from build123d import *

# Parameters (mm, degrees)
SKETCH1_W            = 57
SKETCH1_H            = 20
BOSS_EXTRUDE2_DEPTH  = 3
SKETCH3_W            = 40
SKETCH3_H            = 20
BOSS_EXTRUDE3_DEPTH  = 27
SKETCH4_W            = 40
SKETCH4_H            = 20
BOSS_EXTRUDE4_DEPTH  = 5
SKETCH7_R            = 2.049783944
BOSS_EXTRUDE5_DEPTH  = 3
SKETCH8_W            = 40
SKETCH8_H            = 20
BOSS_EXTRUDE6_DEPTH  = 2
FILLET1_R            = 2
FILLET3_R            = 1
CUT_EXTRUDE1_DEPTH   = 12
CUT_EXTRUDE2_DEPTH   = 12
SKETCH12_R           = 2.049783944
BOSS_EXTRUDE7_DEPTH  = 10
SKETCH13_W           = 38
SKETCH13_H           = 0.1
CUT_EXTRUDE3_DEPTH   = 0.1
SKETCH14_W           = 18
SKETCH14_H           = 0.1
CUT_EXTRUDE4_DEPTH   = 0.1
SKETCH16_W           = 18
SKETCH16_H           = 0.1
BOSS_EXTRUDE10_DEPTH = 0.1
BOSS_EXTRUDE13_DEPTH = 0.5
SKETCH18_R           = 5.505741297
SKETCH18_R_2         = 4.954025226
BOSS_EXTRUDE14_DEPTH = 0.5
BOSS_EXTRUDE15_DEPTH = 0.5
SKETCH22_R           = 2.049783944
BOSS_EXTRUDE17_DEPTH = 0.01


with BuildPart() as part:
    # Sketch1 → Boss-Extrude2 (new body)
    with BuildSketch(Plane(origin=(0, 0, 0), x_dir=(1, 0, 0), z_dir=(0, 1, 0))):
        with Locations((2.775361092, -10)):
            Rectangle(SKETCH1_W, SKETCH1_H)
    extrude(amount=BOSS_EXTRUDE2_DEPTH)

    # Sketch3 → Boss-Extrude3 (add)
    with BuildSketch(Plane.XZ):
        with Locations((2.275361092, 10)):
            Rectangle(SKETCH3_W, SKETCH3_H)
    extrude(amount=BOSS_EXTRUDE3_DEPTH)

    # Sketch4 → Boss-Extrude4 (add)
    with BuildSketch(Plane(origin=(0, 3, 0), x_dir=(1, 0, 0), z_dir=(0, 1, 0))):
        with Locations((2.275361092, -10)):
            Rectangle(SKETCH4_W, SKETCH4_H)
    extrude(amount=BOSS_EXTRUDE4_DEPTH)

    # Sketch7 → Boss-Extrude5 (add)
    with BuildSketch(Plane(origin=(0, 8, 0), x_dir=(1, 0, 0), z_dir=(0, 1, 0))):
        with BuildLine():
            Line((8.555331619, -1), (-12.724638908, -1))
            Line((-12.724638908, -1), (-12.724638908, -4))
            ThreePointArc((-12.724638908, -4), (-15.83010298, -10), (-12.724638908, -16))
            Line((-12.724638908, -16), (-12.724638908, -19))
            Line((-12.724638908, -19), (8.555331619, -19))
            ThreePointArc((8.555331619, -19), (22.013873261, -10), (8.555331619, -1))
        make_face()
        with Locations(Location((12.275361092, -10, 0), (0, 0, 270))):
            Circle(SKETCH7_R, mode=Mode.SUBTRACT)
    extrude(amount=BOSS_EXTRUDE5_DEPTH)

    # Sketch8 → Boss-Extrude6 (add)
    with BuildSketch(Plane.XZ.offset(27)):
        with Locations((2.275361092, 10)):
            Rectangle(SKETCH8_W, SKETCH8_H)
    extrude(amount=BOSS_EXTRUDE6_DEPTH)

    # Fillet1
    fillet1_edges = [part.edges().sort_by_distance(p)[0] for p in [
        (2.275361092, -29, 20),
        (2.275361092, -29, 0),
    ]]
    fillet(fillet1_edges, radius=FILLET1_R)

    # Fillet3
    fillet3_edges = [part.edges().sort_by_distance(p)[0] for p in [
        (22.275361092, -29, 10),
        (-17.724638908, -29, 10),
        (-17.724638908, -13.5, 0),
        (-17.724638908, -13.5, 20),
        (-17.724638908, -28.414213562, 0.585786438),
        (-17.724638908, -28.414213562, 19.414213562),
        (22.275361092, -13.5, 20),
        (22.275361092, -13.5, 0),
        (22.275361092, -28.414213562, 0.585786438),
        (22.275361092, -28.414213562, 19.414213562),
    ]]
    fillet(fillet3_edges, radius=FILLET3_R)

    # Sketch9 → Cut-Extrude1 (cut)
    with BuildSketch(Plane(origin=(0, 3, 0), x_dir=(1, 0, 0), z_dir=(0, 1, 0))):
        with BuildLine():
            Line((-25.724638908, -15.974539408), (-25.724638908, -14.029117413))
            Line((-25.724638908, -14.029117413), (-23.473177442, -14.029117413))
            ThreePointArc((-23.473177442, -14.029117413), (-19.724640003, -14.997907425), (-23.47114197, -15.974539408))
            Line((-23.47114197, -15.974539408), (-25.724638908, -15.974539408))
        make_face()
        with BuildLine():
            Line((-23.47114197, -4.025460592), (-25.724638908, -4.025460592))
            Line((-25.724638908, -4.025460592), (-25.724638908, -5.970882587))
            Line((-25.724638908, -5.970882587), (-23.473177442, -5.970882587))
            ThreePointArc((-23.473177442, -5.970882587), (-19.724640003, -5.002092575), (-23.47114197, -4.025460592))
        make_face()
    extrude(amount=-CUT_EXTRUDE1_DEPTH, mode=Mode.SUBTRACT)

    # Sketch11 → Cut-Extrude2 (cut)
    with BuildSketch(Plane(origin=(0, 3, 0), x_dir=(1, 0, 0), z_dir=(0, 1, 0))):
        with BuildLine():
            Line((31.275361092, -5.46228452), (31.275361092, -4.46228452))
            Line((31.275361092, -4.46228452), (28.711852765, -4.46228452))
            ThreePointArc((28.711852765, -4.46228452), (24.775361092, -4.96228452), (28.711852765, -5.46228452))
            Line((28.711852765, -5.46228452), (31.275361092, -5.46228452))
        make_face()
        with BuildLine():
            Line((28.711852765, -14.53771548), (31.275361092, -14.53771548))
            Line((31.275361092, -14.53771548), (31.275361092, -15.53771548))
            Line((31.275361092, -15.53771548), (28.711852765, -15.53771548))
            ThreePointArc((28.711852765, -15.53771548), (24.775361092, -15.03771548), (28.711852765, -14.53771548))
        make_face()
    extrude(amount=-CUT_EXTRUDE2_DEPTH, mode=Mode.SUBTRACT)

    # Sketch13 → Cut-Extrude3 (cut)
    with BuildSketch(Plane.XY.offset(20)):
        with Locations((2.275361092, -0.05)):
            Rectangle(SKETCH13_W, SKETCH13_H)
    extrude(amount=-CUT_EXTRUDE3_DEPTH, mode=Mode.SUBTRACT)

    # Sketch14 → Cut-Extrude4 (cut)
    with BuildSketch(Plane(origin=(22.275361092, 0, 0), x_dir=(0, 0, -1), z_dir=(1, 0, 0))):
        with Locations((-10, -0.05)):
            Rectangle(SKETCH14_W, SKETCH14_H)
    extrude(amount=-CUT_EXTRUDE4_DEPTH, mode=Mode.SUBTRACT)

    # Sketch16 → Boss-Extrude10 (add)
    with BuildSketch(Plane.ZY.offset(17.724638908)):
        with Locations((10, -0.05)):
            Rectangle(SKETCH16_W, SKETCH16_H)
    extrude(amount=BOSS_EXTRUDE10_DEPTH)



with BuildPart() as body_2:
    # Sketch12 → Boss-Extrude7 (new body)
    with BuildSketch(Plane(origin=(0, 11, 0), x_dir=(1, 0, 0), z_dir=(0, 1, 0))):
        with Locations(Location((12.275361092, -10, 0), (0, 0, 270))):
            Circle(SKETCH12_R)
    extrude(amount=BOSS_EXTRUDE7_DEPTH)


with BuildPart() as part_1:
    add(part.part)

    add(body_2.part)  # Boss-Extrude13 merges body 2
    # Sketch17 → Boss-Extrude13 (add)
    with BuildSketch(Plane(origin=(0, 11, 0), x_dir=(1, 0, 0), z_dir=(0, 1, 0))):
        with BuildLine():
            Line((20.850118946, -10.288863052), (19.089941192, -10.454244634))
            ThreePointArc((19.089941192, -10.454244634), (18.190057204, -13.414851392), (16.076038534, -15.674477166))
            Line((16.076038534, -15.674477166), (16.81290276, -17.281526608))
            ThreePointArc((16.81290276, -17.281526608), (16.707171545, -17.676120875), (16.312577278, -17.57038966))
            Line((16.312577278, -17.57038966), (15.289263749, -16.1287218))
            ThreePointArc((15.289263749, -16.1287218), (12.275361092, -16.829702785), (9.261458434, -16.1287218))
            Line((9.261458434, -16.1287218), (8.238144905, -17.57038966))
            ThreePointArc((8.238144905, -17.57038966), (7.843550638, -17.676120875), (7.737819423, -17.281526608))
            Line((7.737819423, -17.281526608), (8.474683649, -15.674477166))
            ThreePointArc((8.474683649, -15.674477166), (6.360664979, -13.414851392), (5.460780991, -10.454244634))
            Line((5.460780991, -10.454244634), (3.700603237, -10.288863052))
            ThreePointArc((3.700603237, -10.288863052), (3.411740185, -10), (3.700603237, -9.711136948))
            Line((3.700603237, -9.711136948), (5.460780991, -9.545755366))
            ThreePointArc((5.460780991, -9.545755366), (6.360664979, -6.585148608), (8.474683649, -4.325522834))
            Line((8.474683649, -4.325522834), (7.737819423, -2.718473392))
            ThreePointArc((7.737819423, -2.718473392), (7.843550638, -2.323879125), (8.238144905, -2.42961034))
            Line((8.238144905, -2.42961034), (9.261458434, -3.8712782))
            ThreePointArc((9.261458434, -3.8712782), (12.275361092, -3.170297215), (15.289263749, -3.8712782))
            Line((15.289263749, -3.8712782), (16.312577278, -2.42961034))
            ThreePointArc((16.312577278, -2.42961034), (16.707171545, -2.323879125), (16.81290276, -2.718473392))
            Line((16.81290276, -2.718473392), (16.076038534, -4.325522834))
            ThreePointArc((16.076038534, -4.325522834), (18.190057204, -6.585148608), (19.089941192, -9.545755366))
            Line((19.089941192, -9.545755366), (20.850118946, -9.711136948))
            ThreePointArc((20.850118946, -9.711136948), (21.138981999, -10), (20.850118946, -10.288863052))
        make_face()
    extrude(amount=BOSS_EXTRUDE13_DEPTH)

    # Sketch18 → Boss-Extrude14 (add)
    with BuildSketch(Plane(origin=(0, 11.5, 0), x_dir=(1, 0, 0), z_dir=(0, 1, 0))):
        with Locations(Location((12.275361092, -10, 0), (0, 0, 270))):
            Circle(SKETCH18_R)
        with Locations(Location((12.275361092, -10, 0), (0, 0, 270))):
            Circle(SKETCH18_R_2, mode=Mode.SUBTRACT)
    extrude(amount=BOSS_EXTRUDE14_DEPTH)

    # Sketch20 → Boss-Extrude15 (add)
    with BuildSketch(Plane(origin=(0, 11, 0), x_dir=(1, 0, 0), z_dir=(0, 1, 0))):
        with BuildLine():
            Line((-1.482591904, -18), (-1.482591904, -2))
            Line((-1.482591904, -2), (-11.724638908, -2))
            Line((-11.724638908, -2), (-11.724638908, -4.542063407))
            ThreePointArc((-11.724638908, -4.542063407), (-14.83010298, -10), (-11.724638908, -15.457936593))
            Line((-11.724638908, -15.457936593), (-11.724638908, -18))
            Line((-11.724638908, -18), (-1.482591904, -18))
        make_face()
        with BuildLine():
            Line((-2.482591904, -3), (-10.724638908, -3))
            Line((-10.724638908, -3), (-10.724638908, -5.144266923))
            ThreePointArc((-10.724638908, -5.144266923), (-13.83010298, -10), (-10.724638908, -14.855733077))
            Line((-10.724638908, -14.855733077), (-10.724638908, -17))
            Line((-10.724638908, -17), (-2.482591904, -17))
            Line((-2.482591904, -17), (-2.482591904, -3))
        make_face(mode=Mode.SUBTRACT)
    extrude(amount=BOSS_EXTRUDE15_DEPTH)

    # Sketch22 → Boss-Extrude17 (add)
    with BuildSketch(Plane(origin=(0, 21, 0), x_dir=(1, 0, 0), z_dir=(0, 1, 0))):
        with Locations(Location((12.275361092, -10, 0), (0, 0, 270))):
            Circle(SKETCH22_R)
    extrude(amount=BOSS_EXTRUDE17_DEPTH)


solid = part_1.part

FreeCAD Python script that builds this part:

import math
import FreeCAD as App
import Part
import Sketcher
Q = App.Units.Quantity


def edges_at(feature, points):
    """Names of the edges that pass closest to the given points."""
    edges = feature.Shape.Edges
    near = lambda p: min(range(len(edges)), key=lambda i: edges[i].distToShape(Part.Vertex(*p))[0])
    return sorted({f"Edge{near(p) + 1}" for p in points})


def add_polygon(sketch, points):
    """Adds a closed chain of lines whose ends are joined by coincident constraints."""
    first, n = sketch.GeometryCount, len(points)
    for a, b in zip(points, points[1:] + points[:1]):
        sketch.addGeometry(Part.LineSegment(App.Vector(*a, 0), App.Vector(*b, 0)), False)
    for i in range(n):
        sketch.addConstraint(Sketcher.Constraint("Coincident", first + i, 2, first + (i + 1) % n, 1))

doc = App.newDocument("Part")
params = doc.addObject("Spreadsheet::Sheet", "Params")
for row, (alias, value) in enumerate([
    ("sketch1_width", "57 mm"),
    ("sketch1_height", "20 mm"),
    ("pad1_length", "3 mm"),
    ("sketch2_width", "40 mm"),
    ("sketch2_height", "20 mm"),
    ("pad2_length", "27 mm"),
    ("sketch3_width", "40 mm"),
    ("sketch3_height", "20 mm"),
    ("pad3_length", "5 mm"),
    ("sketch4_height", "3 mm"),
    ("pad4_length", "3 mm"),
    ("sketch5_width", "40 mm"),
    ("sketch5_height", "20 mm"),
    ("pad5_length", "2 mm"),
    ("fillet_radius", "2 mm"),
    ("fillet2_radius", "1 mm"),
    ("sketch6_radius", "2 mm"),
    ("pocket1_length", "12 mm"),
    ("sketch7_radius", "2 mm"),
    ("sketch7_height", "1 mm"),
    ("pocket2_length", "12 mm"),
    ("sketch8_width", "38 mm"),
    ("sketch8_height", "0.1 mm"),
    ("pocket3_length", "0.1 mm"),
    ("sketch9_height", "18 mm"),
    ("sketch9_width", "0.1 mm"),
    ("pocket4_length", "0.1 mm"),
    ("sketch10_height", "18 mm"),
    ("sketch10_width", "0.1 mm"),
    ("pad6_length", "0.1 mm"),
    ("pad7_length", "10 mm"),
    ("pad8_length", "0.5 mm"),
    ("pad9_length", "0.5 mm"),
    ("sketch14_height", "16 mm"),
    ("sketch14_height2", "14 mm"),
    ("pad10_length", "0.5 mm"),
    ("pad11_length", "0.01 mm"),
], start=1):
    params.set(f"A{row}", alias)
    params.set(f"B{row}", "=" + value)
    params.setAlias(f"B{row}", alias)

body = doc.addObject("PartDesign::Body", "Body")

# Sketch on XZ plane
sketch1 = doc.addObject("Sketcher::SketchObject", "Sketch")
body.addObject(sketch1)
sketch1.AttachmentSupport = (doc.XZ_Plane, [""])
sketch1.MapMode = "FlatFace"
add_polygon(sketch1, [(-25.724639, 0), (-25.724639, 20), (31.275361, 20), (31.275361, 0)])  # lines 0-3
sketch1.addConstraint([
    Sketcher.Constraint("Vertical", 0),
    Sketcher.Constraint("Horizontal", 1),
    Sketcher.Constraint("Vertical", 2),
    Sketcher.Constraint("Horizontal", 3),
    Sketcher.Constraint("PointOnObject", 2, 2, -1),
    Sketcher.Constraint("DistanceX", 1, 1, 1, 2, Q("57 mm")),
    Sketcher.Constraint("DistanceY", 0, 1, 0, 2, Q("20 mm")),
    Sketcher.Constraint("DistanceX", 0, 2, -1, 1, Q("25.724639 mm")),
])
sketch1.setExpression("Constraints[9]", "Params.sketch1_width")
sketch1.setExpression("Constraints[10]", "Params.sketch1_height")
pad1 = doc.addObject("PartDesign::Pad", "Pad")
body.addObject(pad1)
pad1.Profile = sketch1
pad1.setExpression("Length", "Params.pad1_length")
pad1.Reversed = True

# Sketch on XZ plane
sketch2 = doc.addObject("Sketcher::SketchObject", "Sketch001")
body.addObject(sketch2)
sketch2.AttachmentSupport = (doc.XZ_Plane, [""])
sketch2.MapMode = "FlatFace"
add_polygon(sketch2, [(-17.724639, 20), (-17.724639, 0), (22.275361, 0), (22.275361, 20)])  # lines 0-3
sketch2.addConstraint([
    Sketcher.Constraint("Vertical", 0),
    Sketcher.Constraint("Horizontal", 1),
    Sketcher.Constraint("Vertical", 2),
    Sketcher.Constraint("Horizontal", 3),
    Sketcher.Constraint("PointOnObject", 0, 2, -1),
    Sketcher.Constraint("DistanceX", 1, 1, 1, 2, Q("40 mm")),
    Sketcher.Constraint("DistanceY", 0, 2, 0, 1, Q("20 mm")),
    Sketcher.Constraint("DistanceX", 0, 2, -1, 1, Q("17.724639 mm")),
])
sketch2.setExpression("Constraints[9]", "Params.sketch2_width")
sketch2.setExpression("Constraints[10]", "Params.sketch2_height")
pad2 = doc.addObject("PartDesign::Pad", "Pad001")
body.addObject(pad2)
pad2.Profile = sketch2
pad2.setExpression("Length", "Params.pad2_length")

# Sketch on XZ plane
sketch3 = doc.addObject("Sketcher::SketchObject", "Sketch002")
body.addObject(sketch3)
sketch3.AttachmentSupport = (doc.XZ_Plane, [""])
sketch3.MapMode = "FlatFace"
sketch3.AttachmentOffset = App.Placement(App.Vector(0, 0, -3), App.Rotation())
add_polygon(sketch3, [(-17.724639, 0), (-17.724639, 20), (22.275361, 20), (22.275361, 0)])  # lines 0-3
sketch3.addConstraint([
    Sketcher.Constraint("Vertical", 0),
    Sketcher.Constraint("Horizontal", 1),
    Sketcher.Constraint("Vertical", 2),
    Sketcher.Constraint("Horizontal", 3),
    Sketcher.Constraint("PointOnObject", 2, 2, -1),
    Sketcher.Constraint("DistanceX", 1, 1, 1, 2, Q("40 mm")),
    Sketcher.Constraint("DistanceY", 0, 1, 0, 2, Q("20 mm")),
    Sketcher.Constraint("DistanceX", 0, 2, -1, 1, Q("17.724639 mm")),
])
sketch3.setExpression("Constraints[9]", "Params.sketch3_width")
sketch3.setExpression("Constraints[10]", "Params.sketch3_height")
pad3 = doc.addObject("PartDesign::Pad", "Pad002")
body.addObject(pad3)
pad3.Profile = sketch3
pad3.setExpression("Length", "Params.pad3_length")
pad3.Reversed = True

# Sketch on XZ plane
sketch4 = doc.addObject("Sketcher::SketchObject", "Sketch003")
body.addObject(sketch4)
sketch4.AttachmentSupport = (doc.XZ_Plane, [""])
sketch4.MapMode = "FlatFace"
sketch4.AttachmentOffset = App.Placement(App.Vector(0, 0, -8), App.Rotation())
sketch4.addGeometry([
    Part.LineSegment(App.Vector(8.555332, 1, 0), App.Vector(-12.724639, 1, 0)),  # 0
    Part.LineSegment(App.Vector(-12.724639, 1, 0), App.Vector(-12.724639, 4, 0)),  # 1
    Part.ArcOfCircle(Part.Circle(App.Vector(-8.481136, 10, 0), App.Vector(0, 0, 1), 7.348967), math.radians(125.26988), math.radians(234.73012)),  # 2
    Part.LineSegment(App.Vector(-12.724639, 16, 0), App.Vector(-12.724639, 19, 0)),  # 3
    Part.LineSegment(App.Vector(-12.724639, 19, 0), App.Vector(8.555332, 19, 0)),  # 4
    Part.ArcOfCircle(Part.Circle(App.Vector(12.275361, 10, 0), App.Vector(0, 0, 1), 9.738512), math.radians(-112.457099), math.radians(112.457099)),  # 5
    Part.Circle(App.Vector(12.275361, 10, 0), App.Vector(0, 0, 1), 2.049784),  # 6
], False)
sketch4.addConstraint([
    Sketcher.Constraint("Coincident", 0, 2, 1, 1),
    Sketcher.Constraint("Coincident", 1, 2, 2, 2),
    Sketcher.Constraint("Coincident", 2, 1, 3, 1),
    Sketcher.Constraint("Coincident", 3, 2, 4, 1),
    Sketcher.Constraint("Coincident", 4, 2, 5, 2),
    Sketcher.Constraint("Coincident", 5, 1, 0, 1),
    Sketcher.Constraint("Horizontal", 0),
    Sketcher.Constraint("Vertical", 1),
    Sketcher.Constraint("Vertical", 3),
    Sketcher.Constraint("Horizontal", 4),
    Sketcher.Constraint("Coincident", 6, 3, 5, 3),
    Sketcher.Constraint("Horizontal", 2, 3, 5, 3),
    Sketcher.Constraint("Vertical", 1, 2, 2, 1),
    Sketcher.Constraint("Vertical", 4, 2, 5, 1),
    Sketcher.Constraint("DistanceY", 1, 1, 1, 2, Q("3 mm")),
    Sketcher.Constraint("DistanceY", -1, 1, 2, 3, Q("10 mm")),
    Sketcher.Constraint("DistanceY", -1, 1, 0, 2, Q("1 mm")),
    Sketcher.Constraint("DistanceX", 0, 2, 5, 3, Q("25 mm")),
    Sketcher.Constraint("Diameter", 6, Q("4.099568 mm")),
    Sketcher.Constraint("Radius", 2, Q("7.348967 mm")),
    Sketcher.Constraint("Radius", 5, Q("9.738512 mm")),
    Sketcher.Constraint("DistanceX", -1, 1, 5, 3, Q("12.275361 mm")),
])
sketch4.setExpression("Constraints[14]", "Params.sketch4_height")
pad4 = doc.addObject("PartDesign::Pad", "Pad003")
body.addObject(pad4)
pad4.Profile = sketch4
pad4.setExpression("Length", "Params.pad4_length")
pad4.Reversed = True

# Sketch on XZ plane
sketch5 = doc.addObject("Sketcher::SketchObject", "Sketch004")
body.addObject(sketch5)
sketch5.AttachmentSupport = (doc.XZ_Plane, [""])
sketch5.MapMode = "FlatFace"
sketch5.AttachmentOffset = App.Placement(App.Vector(0, 0, 27), App.Rotation())
add_polygon(sketch5, [(-17.724639, 20), (-17.724639, 0), (22.275361, 0), (22.275361, 20)])  # lines 0-3
sketch5.addConstraint([
    Sketcher.Constraint("Vertical", 0),
    Sketcher.Constraint("Horizontal", 1),
    Sketcher.Constraint("Vertical", 2),
    Sketcher.Constraint("Horizontal", 3),
    Sketcher.Constraint("PointOnObject", 0, 2, -1),
    Sketcher.Constraint("DistanceX", 1, 1, 1, 2, Q("40 mm")),
    Sketcher.Constraint("DistanceY", 0, 2, 0, 1, Q("20 mm")),
    Sketcher.Constraint("DistanceX", 0, 2, -1, 1, Q("17.724639 mm")),
])
sketch5.setExpression("Constraints[9]", "Params.sketch5_width")
sketch5.setExpression("Constraints[10]", "Params.sketch5_height")
pad5 = doc.addObject("PartDesign::Pad", "Pad004")
body.addObject(pad5)
pad5.Profile = sketch5
pad5.setExpression("Length", "Params.pad5_length")
doc.recompute()

fillet = doc.addObject("PartDesign::Fillet", "Fillet")
body.addObject(fillet)
fillet.Base = (pad5, edges_at(pad5, [(2.275, -29, 20), (2.275, -29, 0)]))
fillet.setExpression("Radius", "Params.fillet_radius")
doc.recompute()

fillet2 = doc.addObject("PartDesign::Fillet", "Fillet001")
body.addObject(fillet2)
fillet2.Base = (fillet, edges_at(fillet, [
    (22.275, -29, 10),
    (-17.725, -29, 10),
    (-17.725, -13.5, 0),
    (-17.725, -13.5, 20),
    (-17.725, -28.414, 0.586),
    (-17.725, -28.414, 19.414),
    (22.275, -13.5, 20),
    (22.275, -13.5, 0),
    (22.275, -28.414, 0.586),
    (22.275, -28.414, 19.414),
]))
fillet2.setExpression("Radius", "Params.fillet2_radius")

# Sketch on XZ plane
sketch6 = doc.addObject("Sketcher::SketchObject", "Sketch005")
body.addObject(sketch6)
sketch6.AttachmentSupport = (doc.XZ_Plane, [""])
sketch6.MapMode = "FlatFace"
sketch6.AttachmentOffset = App.Placement(App.Vector(0, 0, -3), App.Rotation())
sketch6.addGeometry([
    Part.LineSegment(App.Vector(-25.724639, 14.029117, 0), App.Vector(-25.724639, 15.974539, 0)),  # 0
    Part.LineSegment(App.Vector(-25.724639, 15.974539, 0), App.Vector(-23.471142, 15.974539, 0)),  # 1
    Part.ArcOfCircle(Part.Circle(App.Vector(-21.724639, 15, 0), App.Vector(0, 0, 1), 2), math.radians(-150.958611), math.radians(150.838715)),  # 2
    Part.LineSegment(App.Vector(-23.473177, 14.029117, 0), App.Vector(-25.724639, 14.029117, 0)),  # 3
    Part.LineSegment(App.Vector(-23.471142, 4.025461, 0), App.Vector(-25.724639, 4.025461, 0)),  # 4
    Part.LineSegment(App.Vector(-25.724639, 4.025461, 0), App.Vector(-25.724639, 5.970883, 0)),  # 5
    Part.LineSegment(App.Vector(-25.724639, 5.970883, 0), App.Vector(-23.473177, 5.970883, 0)),  # 6
    Part.ArcOfCircle(Part.Circle(App.Vector(-21.724639, 5, 0), App.Vector(0, 0, 1), 2), math.radians(-150.838715), math.radians(150.958611)),  # 7
], False)
sketch6.addConstraint([
    Sketcher.Constraint("Coincident", 0, 2, 1, 1),
    Sketcher.Constraint("Coincident", 1, 2, 2, 2),
    Sketcher.Constraint("Coincident", 2, 1, 3, 1),
    Sketcher.Constraint("Coincident", 3, 2, 0, 1),
    Sketcher.Constraint("Coincident", 4, 2, 5, 1),
    Sketcher.Constraint("Coincident", 5, 2, 6, 1),
    Sketcher.Constraint("Coincident", 6, 2, 7, 2),
    Sketcher.Constraint("Coincident", 7, 1, 4, 1),
    Sketcher.Constraint("Vertical", 0),
    Sketcher.Constraint("Horizontal", 1),
    Sketcher.Constraint("Horizontal", 3),
    Sketcher.Constraint("Horizontal", 4),
    Sketcher.Constraint("Vertical", 5),
    Sketcher.Constraint("Horizontal", 6),
    Sketcher.Constraint("Equal", 2, 7),
    Sketcher.Constraint("Vertical", 2, 3, 7, 3),
    Sketcher.Constraint("Vertical", 3, 2, 4, 2),
    Sketcher.Constraint("Vertical", 2, 1, 6, 2),
    Sketcher.Constraint("Vertical", 1, 2, 7, 1),
    Sketcher.Constraint("Radius", 2, Q("2 mm")),
    Sketcher.Constraint("DistanceY", -1, 1, 2, 3, Q("15 mm")),
    Sketcher.Constraint("DistanceY", -1, 1, 7, 3, Q("5 mm")),
    Sketcher.Constraint("DistanceX", 0, 2, 2, 3, Q("4 mm")),
    Sketcher.Constraint("DistanceX", 3, 2, 3, 1, Q("2.251461 mm")),
    Sketcher.Constraint("DistanceY", 0, 1, 0, 2, Q("1.945422 mm")),
    Sketcher.Constraint("DistanceX", 2, 3, -1, 1, Q("21.724639 mm")),
])
sketch6.setExpression("Constraints[19]", "Params.sketch6_radius")
pocket1 = doc.addObject("PartDesign::Pocket", "Pocket")
body.addObject(pocket1)
pocket1.Profile = sketch6
pocket1.setExpression("Length", "Params.pocket1_length")
pocket1.Reversed = True

# Sketch on XZ plane
sketch7 = doc.addObject("Sketcher::SketchObject", "Sketch006")
body.addObject(sketch7)
sketch7.AttachmentSupport = (doc.XZ_Plane, [""])
sketch7.MapMode = "FlatFace"
sketch7.AttachmentOffset = App.Placement(App.Vector(0, 0, -3), App.Rotation())
sketch7.addGeometry([
    Part.LineSegment(App.Vector(31.275361, 5.462285, 0), App.Vector(31.275361, 4.462285, 0)),  # 0
    Part.LineSegment(App.Vector(31.275361, 4.462285, 0), App.Vector(28.711853, 4.462285, 0)),  # 1
    Part.ArcOfCircle(Part.Circle(App.Vector(26.775361, 4.962285, 0), App.Vector(0, 0, 1), 2), math.radians(14.477512), math.radians(345.522488)),  # 2
    Part.LineSegment(App.Vector(28.711853, 5.462285, 0), App.Vector(31.275361, 5.462285, 0)),  # 3
    Part.LineSegment(App.Vector(31.275361, 14.537715, 0), App.Vector(28.711853, 14.537715, 0)),  # 4
    Part.ArcOfCircle(Part.Circle(App.Vector(26.775361, 15.037715, 0), App.Vector(0, 0, 1), 2), math.radians(14.477512), math.radians(345.522488)),  # 5
    Part.LineSegment(App.Vector(28.711853, 15.537715, 0), App.Vector(31.275361, 15.537715, 0)),  # 6
    Part.LineSegment(App.Vector(31.275361, 15.537715, 0), App.Vector(31.275361, 14.537715, 0)),  # 7
], False)
sketch7.addConstraint([
    Sketcher.Constraint("Coincident", 0, 2, 1, 1),
    Sketcher.Constraint("Coincident", 1, 2, 2, 2),
    Sketcher.Constraint("Coincident", 2, 1, 3, 1),
    Sketcher.Constraint("Coincident", 3, 2, 0, 1),
    Sketcher.Constraint("Coincident", 4, 2, 5, 2),
    Sketcher.Constraint("Coincident", 5, 1, 6, 1),
    Sketcher.Constraint("Coincident", 6, 2, 7, 1),
    Sketcher.Constraint("Coincident", 7, 2, 4, 1),
    Sketcher.Constraint("Vertical", 0),
    Sketcher.Constraint("Horizontal", 1),
    Sketcher.Constraint("Horizontal", 3),
    Sketcher.Constraint("Horizontal", 4),
    Sketcher.Constraint("Horizontal", 6),
    Sketcher.Constraint("Vertical", 7),
    Sketcher.Constraint("Equal", 2, 5),
    Sketcher.Constraint("Vertical", 2, 3, 5, 3),
    Sketcher.Constraint("Vertical", 1, 2, 2, 1),
    Sketcher.Constraint("Vertical", 2, 1, 4, 2),
    Sketcher.Constraint("Vertical", 4, 2, 5, 1),
    Sketcher.Constraint("Vertical", 3, 2, 6, 2),
    Sketcher.Constraint("Radius", 2, Q("2 mm")),
    Sketcher.Constraint("DistanceY", 0, 2, 0, 1, Q("1 mm")),
    Sketcher.Constraint("DistanceX", 2, 3, 0, 2, Q("4.5 mm")),
    Sketcher.Constraint("DistanceX", -1, 1, 2, 3, Q("26.775361 mm")),
    Sketcher.Constraint("DistanceY", 2, 3, 5, 3, Q("10.075431 mm")),
    Sketcher.Constraint("DistanceY", -1, 1, 2, 3, Q("4.962285 mm")),
])
sketch7.setExpression("Constraints[20]", "Params.sketch7_radius")
sketch7.setExpression("Constraints[21]", "Params.sketch7_height")
pocket2 = doc.addObject("PartDesign::Pocket", "Pocket001")
body.addObject(pocket2)
pocket2.Profile = sketch7
pocket2.setExpression("Length", "Params.pocket2_length")
pocket2.Reversed = True

# Sketch on XY plane
sketch8 = doc.addObject("Sketcher::SketchObject", "Sketch007")
body.addObject(sketch8)
sketch8.AttachmentSupport = (doc.XY_Plane, [""])
sketch8.MapMode = "FlatFace"
sketch8.AttachmentOffset = App.Placement(App.Vector(0, 0, 20), App.Rotation())
add_polygon(sketch8, [(-16.724639, 0), (-16.724639, -0.1), (21.275361, -0.1), (21.275361, 0)])  # lines 0-3
sketch8.addConstraint([
    Sketcher.Constraint("Vertical", 0),
    Sketcher.Constraint("Horizontal", 1),
    Sketcher.Constraint("Vertical", 2),
    Sketcher.Constraint("Horizontal", 3),
    Sketcher.Constraint("PointOnObject", 2, 2, -1),
    Sketcher.Constraint("DistanceX", 1, 1, 1, 2, Q("38 mm")),
    Sketcher.Constraint("DistanceY", 0, 2, 0, 1, Q("0.1 mm")),
    Sketcher.Constraint("DistanceX", 0, 2, -1, 1, Q("16.724639 mm")),
])
sketch8.setExpression("Constraints[9]", "Params.sketch8_width")
sketch8.setExpression("Constraints[10]", "Params.sketch8_height")
pocket3 = doc.addObject("PartDesign::Pocket", "Pocket002")
body.addObject(pocket3)
pocket3.Profile = sketch8
pocket3.setExpression("Length", "Params.pocket3_length")

# Sketch on YZ plane
sketch9 = doc.addObject("Sketcher::SketchObject", "Sketch008")
body.addObject(sketch9)
sketch9.AttachmentSupport = (doc.YZ_Plane, [""])
sketch9.MapMode = "FlatFace"
sketch9.AttachmentOffset = App.Placement(App.Vector(0, 0, 22.275361), App.Rotation())
add_polygon(sketch9, [(0, 19), (-0.1, 19), (-0.1, 1), (0, 1)])  # lines 0-3
sketch9.addConstraint([
    Sketcher.Constraint("Horizontal", 0),
    Sketcher.Constraint("Vertical", 1),
    Sketcher.Constraint("Horizontal", 2),
    Sketcher.Constraint("Vertical", 3),
    Sketcher.Constraint("PointOnObject", 2, 2, -2),
    Sketcher.Constraint("DistanceY", 1, 2, 1, 1, Q("18 mm")),
    Sketcher.Constraint("DistanceX", 0, 2, 0, 1, Q("0.1 mm")),
    Sketcher.Constraint("DistanceY", -1, 1, 0, 2, Q("19 mm")),
])
sketch9.setExpression("Constraints[9]", "Params.sketch9_height")
sketch9.setExpression("Constraints[10]", "Params.sketch9_width")
pocket4 = doc.addObject("PartDesign::Pocket", "Pocket003")
body.addObject(pocket4)
pocket4.Profile = sketch9
pocket4.setExpression("Length", "Params.pocket4_length")

# Sketch on YZ plane
sketch10 = doc.addObject("Sketcher::SketchObject", "Sketch009")
body.addObject(sketch10)
sketch10.AttachmentSupport = (doc.YZ_Plane, [""])
sketch10.MapMode = "FlatFace"
sketch10.AttachmentOffset = App.Placement(App.Vector(0, 0, -17.724639), App.Rotation())
add_polygon(sketch10, [(0, 1), (-0.1, 1), (-0.1, 19), (0, 19)])  # lines 0-3
sketch10.addConstraint([
    Sketcher.Constraint("Horizontal", 0),
    Sketcher.Constraint("Vertical", 1),
    Sketcher.Constraint("Horizontal", 2),
    Sketcher.Constraint("Vertical", 3),
    Sketcher.Constraint("PointOnObject", 2, 2, -2),
    Sketcher.Constraint("DistanceY", 1, 1, 1, 2, Q("18 mm")),
    Sketcher.Constraint("DistanceX", 0, 2, 0, 1, Q("0.1 mm")),
    Sketcher.Constraint("DistanceY", -1, 1, 0, 2, Q("1 mm")),
])
sketch10.setExpression("Constraints[9]", "Params.sketch10_height")
sketch10.setExpression("Constraints[10]", "Params.sketch10_width")
pad6 = doc.addObject("PartDesign::Pad", "Pad005")
body.addObject(pad6)
pad6.Profile = sketch10
pad6.setExpression("Length", "Params.pad6_length")
pad6.Reversed = True
body2 = doc.addObject("PartDesign::Body", "Body001")

# Sketch on XZ plane
sketch11 = doc.addObject("Sketcher::SketchObject", "Sketch010")
body2.addObject(sketch11)
sketch11.AttachmentSupport = (doc.getObject("XZ_Plane001"), [""])
sketch11.MapMode = "FlatFace"
sketch11.AttachmentOffset = App.Placement(App.Vector(0, 0, -11), App.Rotation())
sketch11.addGeometry(Part.Circle(App.Vector(12.275361, 10, 0), App.Vector(0, 0, 1), 2.049784), False)
sketch11.addConstraint([
    Sketcher.Constraint("DistanceY", -1, 1, 0, 3, Q("10 mm")),
    Sketcher.Constraint("Diameter", 0, Q("4.099568 mm")),
    Sketcher.Constraint("DistanceX", -1, 1, 0, 3, Q("12.275361 mm")),
])
pad7 = doc.addObject("PartDesign::Pad", "Pad006")
body2.addObject(pad7)
pad7.Profile = sketch11
pad7.setExpression("Length", "Params.pad7_length")
pad7.Reversed = True
body.AllowCompound = True
doc.recompute()

boolean = doc.addObject("PartDesign::Boolean", "Boolean")
body.addObject(boolean)
boolean.Type = "Fuse"
boolean.addObjects([body2])

# Sketch on XZ plane
sketch12 = doc.addObject("Sketcher::SketchObject", "Sketch011")
body.addObject(sketch12)
sketch12.AttachmentSupport = (doc.XZ_Plane, [""])
sketch12.MapMode = "FlatFace"
sketch12.AttachmentOffset = App.Placement(App.Vector(0, 0, -11), App.Rotation())
sketch12.addGeometry([
    Part.LineSegment(App.Vector(19.089941, 10.454245, 0), App.Vector(20.850119, 10.288863, 0)),  # 0
    Part.ArcOfCircle(Part.Circle(App.Vector(20.850119, 10, 0), App.Vector(0, 0, 1), 0.288863), math.radians(-90), math.radians(90)),  # 1
    Part.LineSegment(App.Vector(20.850119, 9.711137, 0), App.Vector(19.089941, 9.545755, 0)),  # 2
    Part.ArcOfCircle(Part.Circle(App.Vector(12.275361, 10, 0), App.Vector(0, 0, 1), 6.829703), math.radians(-56.186433), math.radians(-3.813567)),  # 3
    Part.LineSegment(App.Vector(16.076039, 4.325523, 0), App.Vector(16.812903, 2.718473, 0)),  # 4
    Part.ArcOfCircle(Part.Circle(App.Vector(16.56274, 2.574042, 0), App.Vector(0, 0, 1), 0.288863), math.radians(-150), math.radians(30)),  # 5
    Part.LineSegment(App.Vector(16.312577, 2.42961, 0), App.Vector(15.289264, 3.871278, 0)),  # 6
    Part.ArcOfCircle(Part.Circle(App.Vector(12.275361, 10, 0), App.Vector(0, 0, 1), 6.829703), math.radians(-116.186433), math.radians(-63.813567)),  # 7
    Part.LineSegment(App.Vector(9.261458, 3.871278, 0), App.Vector(8.238145, 2.42961, 0)),  # 8
    Part.ArcOfCircle(Part.Circle(App.Vector(7.987982, 2.574042, 0), App.Vector(0, 0, 1), 0.288863), math.radians(150), math.radians(330)),  # 9
    Part.LineSegment(App.Vector(7.737819, 2.718473, 0), App.Vector(8.474684, 4.325523, 0)),  # 10
    Part.ArcOfCircle(Part.Circle(App.Vector(12.275361, 10, 0), App.Vector(0, 0, 1), 6.829703), math.radians(-176.186433), math.radians(-123.813567)),  # 11
    Part.LineSegment(App.Vector(5.460781, 9.545755, 0), App.Vector(3.700603, 9.711137, 0)),  # 12
    Part.ArcOfCircle(Part.Circle(App.Vector(3.700603, 10, 0), App.Vector(0, 0, 1), 0.288863), math.radians(90), math.radians(270)),  # 13
    Part.LineSegment(App.Vector(3.700603, 10.288863, 0), App.Vector(5.460781, 10.454245, 0)),  # 14
    Part.ArcOfCircle(Part.Circle(App.Vector(12.275361, 10, 0), App.Vector(0, 0, 1), 6.829703), math.radians(123.813567), math.radians(176.186433)),  # 15
    Part.LineSegment(App.Vector(8.474684, 15.674477, 0), App.Vector(7.737819, 17.281527, 0)),  # 16
    Part.ArcOfCircle(Part.Circle(App.Vector(7.987982, 17.425958, 0), App.Vector(0, 0, 1), 0.288863), math.radians(30), math.radians(210)),  # 17
    Part.LineSegment(App.Vector(8.238145, 17.57039, 0), App.Vector(9.261458, 16.128722, 0)),  # 18
    Part.ArcOfCircle(Part.Circle(App.Vector(12.275361, 10, 0), App.Vector(0, 0, 1), 6.829703), math.radians(63.813567), math.radians(116.186433)),  # 19
    Part.LineSegment(App.Vector(15.289264, 16.128722, 0), App.Vector(16.312577, 17.57039, 0)),  # 20
    Part.ArcOfCircle(Part.Circle(App.Vector(16.56274, 17.425958, 0), App.Vector(0, 0, 1), 0.288863), math.radians(-30), math.radians(150)),  # 21
    Part.LineSegment(App.Vector(16.812903, 17.281527, 0), App.Vector(16.076039, 15.674477, 0)),  # 22
    Part.ArcOfCircle(Part.Circle(App.Vector(12.275361, 10, 0), App.Vector(0, 0, 1), 6.829703), math.radians(3.813567), math.radians(56.186433)),  # 23
], False)
sketch12.addConstraint([
    Sketcher.Constraint("Coincident", 0, 2, 1, 2),
    Sketcher.Constraint("Coincident", 1, 1, 2, 1),
    Sketcher.Constraint("Coincident", 2, 2, 3, 2),
    Sketcher.Constraint("Coincident", 3, 1, 4, 1),
    Sketcher.Constraint("Coincident", 4, 2, 5, 2),
    Sketcher.Constraint("Coincident", 5, 1, 6, 1),
    Sketcher.Constraint("Coincident", 6, 2, 7, 2),
    Sketcher.Constraint("Coincident", 7, 1, 8, 1),
    Sketcher.Constraint("Coincident", 8, 2, 9, 2),
    Sketcher.Constraint("Coincident", 9, 1, 10, 1),
    Sketcher.Constraint("Coincident", 10, 2, 11, 2),
    Sketcher.Constraint("Coincident", 11, 1, 12, 1),
    Sketcher.Constraint("Coincident", 12, 2, 13, 2),
    Sketcher.Constraint("Coincident", 13, 1, 14, 1),
    Sketcher.Constraint("Coincident", 14, 2, 15, 2),
    Sketcher.Constraint("Coincident", 15, 1, 16, 1),
    Sketcher.Constraint("Coincident", 16, 2, 17, 2),
    Sketcher.Constraint("Coincident", 17, 1, 18, 1),
    Sketcher.Constraint("Coincident", 18, 2, 19, 2),
    Sketcher.Constraint("Coincident", 19, 1, 20, 1),
    Sketcher.Constraint("Coincident", 20, 2, 21, 2),
    Sketcher.Constraint("Coincident", 21, 1, 22, 1),
    Sketcher.Constraint("Coincident", 22, 2, 23, 2),
    Sketcher.Constraint("Coincident", 23, 1, 0, 1),
    Sketcher.Constraint("Coincident", 7, 3, 3, 3),
    Sketcher.Constraint("Coincident", 11, 3, 3, 3),
    Sketcher.Constraint("Coincident", 15, 3, 3, 3),
    Sketcher.Constraint("Coincident", 19, 3, 3, 3),
    Sketcher.Constraint("Coincident", 23, 3, 3, 3),
    Sketcher.Constraint("Equal", 1, 5),
    Sketcher.Constraint("Equal", 3, 7),
    Sketcher.Constraint("Equal", 5, 9),
    Sketcher.Constraint("Equal", 7, 11),
    Sketcher.Constraint("Equal", 9, 13),
    Sketcher.Constraint("Equal", 11, 15),
    Sketcher.Constraint("Equal", 13, 17),
    Sketcher.Constraint("Equal", 15, 19),
    Sketcher.Constraint("Equal", 17, 21),
    Sketcher.Constraint("Equal", 19, 23),
    Sketcher.Constraint("Parallel", 0, 12),
    Sketcher.Constraint("Parallel", 2, 14),
    Sketcher.Constraint("Parallel", 4, 16),
    Sketcher.Constraint("Parallel", 6, 18),
    Sketcher.Constraint("Parallel", 8, 20),
    Sketcher.Constraint("Parallel", 10, 22),
    Sketcher.Constraint("Horizontal", 1, 3, 3, 3),
    Sketcher.Constraint("Horizontal", 5, 3, 9, 3),
    Sketcher.Constraint("Horizontal", 11, 3, 13, 3),
    Sketcher.Constraint("Horizontal", 17, 3, 21, 3),
    Sketcher.Constraint("Horizontal", 6, 2, 7, 1),
    Sketcher.Constraint("Horizontal", 5, 1, 8, 2),
    Sketcher.Constraint("Horizontal", 4, 2, 9, 1),
    Sketcher.Constraint("Horizontal", 3, 1, 10, 2),
    Sketcher.Constraint("Horizontal", 2, 2, 11, 1),
    Sketcher.Constraint("Horizontal", 18, 2, 19, 1),
    Sketcher.Constraint("Horizontal", 17, 1, 20, 2),
    Sketcher.Constraint("Horizontal", 16, 2, 21, 1),
    Sketcher.Constraint("Horizontal", 14, 2, 23, 1),
    Sketcher.Constraint("Vertical", 9, 3, 17, 3),
    Sketcher.Constraint("Vertical", 5, 3, 21, 3),
    Sketcher.Constraint("Vertical", 1, 3, 0, 2),
    Sketcher.Constraint("Vertical", 0, 2, 1, 1),
    Sketcher.Constraint("Vertical", 13, 3, 12, 2),
    Sketcher.Constraint("Vertical", 12, 2, 13, 1),
    Sketcher.Constraint("Vertical", 10, 2, 15, 1),
    Sketcher.Constraint("Vertical", 9, 1, 16, 2),
    Sketcher.Constraint("Vertical", 8, 2, 17, 1),
    Sketcher.Constraint("Equal", 2, 4),
    Sketcher.Constraint("Equal", 4, 6),
    Sketcher.Constraint("DistanceY", -1, 1, 1, 3, Q("10 mm")),
    Sketcher.Constraint("Radius", 1, Q("0.288863 mm")),
    Sketcher.Constraint("Radius", 3, Q("6.829703 mm")),
    Sketcher.Constraint("DistanceX", 3, 1, 5, 3, Q("0.486701 mm")),
    Sketcher.Constraint("Distance", 0, Q("1.76793 mm")),
    Sketcher.Constraint("DistanceX", -1, 1, 1, 3, Q("20.850119 mm")),
    Sketcher.Constraint("DistanceX", -1, 1, 3, 3, Q("12.275361 mm")),
    Sketcher.Constraint("DistanceX", -1, 1, 5, 3, Q("16.56274 mm")),
    Sketcher.Constraint("DistanceY", -1, 1, 5, 3, Q("2.574042 mm")),
    Sketcher.Constraint("DistanceY", -1, 1, 5, 1, Q("2.42961 mm")),
])
pad8 = doc.addObject("PartDesign::Pad", "Pad007")
body.addObject(pad8)
pad8.Profile = sketch12
pad8.setExpression("Length", "Params.pad8_length")
pad8.Reversed = True

# Sketch on XZ plane
sketch13 = doc.addObject("Sketcher::SketchObject", "Sketch012")
body.addObject(sketch13)
sketch13.AttachmentSupport = (doc.XZ_Plane, [""])
sketch13.MapMode = "FlatFace"
sketch13.AttachmentOffset = App.Placement(App.Vector(0, 0, -11.5), App.Rotation())
sketch13.addGeometry([
    Part.Circle(App.Vector(12.275361, 10, 0), App.Vector(0, 0, 1), 5.505741),
    Part.Circle(App.Vector(12.275361, 10, 0), App.Vector(0, 0, 1), 4.954025),
], False)
sketch13.addConstraint([
    Sketcher.Constraint("Coincident", 1, 3, 0, 3),
    Sketcher.Constraint("DistanceY", -1, 1, 0, 3, Q("10 mm")),
    Sketcher.Constraint("Diameter", 1, Q("9.90805 mm")),
    Sketcher.Constraint("Diameter", 0, Q("11.011483 mm")),
    Sketcher.Constraint("DistanceX", -1, 1, 0, 3, Q("12.275361 mm")),
])
pad9 = doc.addObject("PartDesign::Pad", "Pad008")
body.addObject(pad9)
pad9.Profile = sketch13
pad9.setExpression("Length", "Params.pad9_length")
pad9.Reversed = True

# Sketch on XZ plane
sketch14 = doc.addObject("Sketcher::SketchObject", "Sketch013")
body.addObject(sketch14)
sketch14.AttachmentSupport = (doc.XZ_Plane, [""])
sketch14.MapMode = "FlatFace"
sketch14.AttachmentOffset = App.Placement(App.Vector(0, 0, -11), App.Rotation())
sketch14.addGeometry([
    Part.LineSegment(App.Vector(-1.482592, 18, 0), App.Vector(-1.482592, 2, 0)),  # 0
    Part.LineSegment(App.Vector(-1.482592, 2, 0), App.Vector(-11.724639, 2, 0)),  # 1
    Part.LineSegment(App.Vector(-11.724639, 2, 0), App.Vector(-11.724639, 4.542063, 0)),  # 2
    Part.ArcOfCircle(Part.Circle(App.Vector(-8.481136, 10, 0), App.Vector(0, 0, 1), 6.348967), math.radians(120.721863), math.radians(239.278137)),  # 3
    Part.LineSegment(App.Vector(-11.724639, 15.457937, 0), App.Vector(-11.724639, 18, 0)),  # 4
    Part.LineSegment(App.Vector(-11.724639, 18, 0), App.Vector(-1.482592, 18, 0)),  # 5
    Part.LineSegment(App.Vector(-10.724639, 3, 0), App.Vector(-2.482592, 3, 0)),  # 6
    Part.LineSegment(App.Vector(-2.482592, 3, 0), App.Vector(-2.482592, 17, 0)),  # 7
    Part.LineSegment(App.Vector(-2.482592, 17, 0), App.Vector(-10.724639, 17, 0)),  # 8
    Part.LineSegment(App.Vector(-10.724639, 17, 0), App.Vector(-10.724639, 14.855733, 0)),  # 9
    Part.ArcOfCircle(Part.Circle(App.Vector(-8.481136, 10, 0), App.Vector(0, 0, 1), 5.348967), math.radians(114.798439), math.radians(245.201561)),  # 10
    Part.LineSegment(App.Vector(-10.724639, 5.144267, 0), App.Vector(-10.724639, 3, 0)),  # 11
], False)
sketch14.addConstraint([
    Sketcher.Constraint("Coincident", 0, 2, 1, 1),
    Sketcher.Constraint("Coincident", 1, 2, 2, 1),
    Sketcher.Constraint("Coincident", 2, 2, 3, 2),
    Sketcher.Constraint("Coincident", 3, 1, 4, 1),
    Sketcher.Constraint("Coincident", 4, 2, 5, 1),
    Sketcher.Constraint("Coincident", 5, 2, 0, 1),
    Sketcher.Constraint("Coincident", 6, 2, 7, 1),
    Sketcher.Constraint("Coincident", 7, 2, 8, 1),
    Sketcher.Constraint("Coincident", 8, 2, 9, 1),
    Sketcher.Constraint("Coincident", 9, 2, 10, 1),
    Sketcher.Constraint("Coincident", 10, 2, 11, 1),
    Sketcher.Constraint("Coincident", 11, 2, 6, 1),
    Sketcher.Constraint("Vertical", 0),
    Sketcher.Constraint("Horizontal", 1),
    Sketcher.Constraint("Vertical", 2),
    Sketcher.Constraint("Vertical", 4),
    Sketcher.Constraint("Horizontal", 5),
    Sketcher.Constraint("Horizontal", 6),
    Sketcher.Constraint("Vertical", 7),
    Sketcher.Constraint("Horizontal", 8),
    Sketcher.Constraint("Vertical", 9),
    Sketcher.Constraint("Vertical", 11),
    Sketcher.Constraint("Coincident", 10, 3, 3, 3),
    Sketcher.Constraint("Vertical", 2, 2, 3, 1),
    Sketcher.Constraint("Vertical", 9, 2, 10, 2),
    Sketcher.Constraint("Equal", 2, 4),
    Sketcher.Constraint("Equal", 9, 11),
    Sketcher.Constraint("DistanceY", 0, 2, 0, 1, Q("16 mm")),
    Sketcher.Constraint("DistanceY", 7, 1, 7, 2, Q("14 mm")),
    Sketcher.Constraint("DistanceY", -1, 1, 3, 3, Q("10 mm")),
    Sketcher.Constraint("DistanceX", 6, 2, 0, 2, Q("1 mm")),
    Sketcher.Constraint("DistanceX", 4, 2, 8, 2, Q("1 mm")),
    Sketcher.Constraint("Radius", 3, Q("6.348967 mm")),
    Sketcher.Constraint("Radius", 10, Q("5.348967 mm")),
    Sketcher.Constraint("DistanceX", 1, 2, 1, 1, Q("10.242047 mm")),
    Sketcher.Constraint("DistanceY", 2, 1, 2, 2, Q("2.542063 mm")),
    Sketcher.Constraint("DistanceX", 0, 2, -1, 1, Q("1.482592 mm")),
])
sketch14.setExpression("Constraints[27]", "Params.sketch14_height")
sketch14.setExpression("Constraints[28]", "Params.sketch14_height2")
pad10 = doc.addObject("PartDesign::Pad", "Pad009")
body.addObject(pad10)
pad10.Profile = sketch14
pad10.setExpression("Length", "Params.pad10_length")
pad10.Reversed = True

# Sketch on XZ plane
sketch15 = doc.addObject("Sketcher::SketchObject", "Sketch014")
body.addObject(sketch15)
sketch15.AttachmentSupport = (doc.XZ_Plane, [""])
sketch15.MapMode = "FlatFace"
sketch15.AttachmentOffset = App.Placement(App.Vector(0, 0, -21), App.Rotation())
sketch15.addGeometry(Part.Circle(App.Vector(12.275361, 10, 0), App.Vector(0, 0, 1), 2.049784), False)
sketch15.addConstraint([
    Sketcher.Constraint("DistanceY", -1, 1, 0, 3, Q("10 mm")),
    Sketcher.Constraint("Diameter", 0, Q("4.099568 mm")),
    Sketcher.Constraint("DistanceX", -1, 1, 0, 3, Q("12.275361 mm")),
])
pad11 = doc.addObject("PartDesign::Pad", "Pad010")
body.addObject(pad11)
pad11.Profile = sketch15
pad11.setExpression("Length", "Params.pad11_length")
pad11.Reversed = True

doc.recompute()
